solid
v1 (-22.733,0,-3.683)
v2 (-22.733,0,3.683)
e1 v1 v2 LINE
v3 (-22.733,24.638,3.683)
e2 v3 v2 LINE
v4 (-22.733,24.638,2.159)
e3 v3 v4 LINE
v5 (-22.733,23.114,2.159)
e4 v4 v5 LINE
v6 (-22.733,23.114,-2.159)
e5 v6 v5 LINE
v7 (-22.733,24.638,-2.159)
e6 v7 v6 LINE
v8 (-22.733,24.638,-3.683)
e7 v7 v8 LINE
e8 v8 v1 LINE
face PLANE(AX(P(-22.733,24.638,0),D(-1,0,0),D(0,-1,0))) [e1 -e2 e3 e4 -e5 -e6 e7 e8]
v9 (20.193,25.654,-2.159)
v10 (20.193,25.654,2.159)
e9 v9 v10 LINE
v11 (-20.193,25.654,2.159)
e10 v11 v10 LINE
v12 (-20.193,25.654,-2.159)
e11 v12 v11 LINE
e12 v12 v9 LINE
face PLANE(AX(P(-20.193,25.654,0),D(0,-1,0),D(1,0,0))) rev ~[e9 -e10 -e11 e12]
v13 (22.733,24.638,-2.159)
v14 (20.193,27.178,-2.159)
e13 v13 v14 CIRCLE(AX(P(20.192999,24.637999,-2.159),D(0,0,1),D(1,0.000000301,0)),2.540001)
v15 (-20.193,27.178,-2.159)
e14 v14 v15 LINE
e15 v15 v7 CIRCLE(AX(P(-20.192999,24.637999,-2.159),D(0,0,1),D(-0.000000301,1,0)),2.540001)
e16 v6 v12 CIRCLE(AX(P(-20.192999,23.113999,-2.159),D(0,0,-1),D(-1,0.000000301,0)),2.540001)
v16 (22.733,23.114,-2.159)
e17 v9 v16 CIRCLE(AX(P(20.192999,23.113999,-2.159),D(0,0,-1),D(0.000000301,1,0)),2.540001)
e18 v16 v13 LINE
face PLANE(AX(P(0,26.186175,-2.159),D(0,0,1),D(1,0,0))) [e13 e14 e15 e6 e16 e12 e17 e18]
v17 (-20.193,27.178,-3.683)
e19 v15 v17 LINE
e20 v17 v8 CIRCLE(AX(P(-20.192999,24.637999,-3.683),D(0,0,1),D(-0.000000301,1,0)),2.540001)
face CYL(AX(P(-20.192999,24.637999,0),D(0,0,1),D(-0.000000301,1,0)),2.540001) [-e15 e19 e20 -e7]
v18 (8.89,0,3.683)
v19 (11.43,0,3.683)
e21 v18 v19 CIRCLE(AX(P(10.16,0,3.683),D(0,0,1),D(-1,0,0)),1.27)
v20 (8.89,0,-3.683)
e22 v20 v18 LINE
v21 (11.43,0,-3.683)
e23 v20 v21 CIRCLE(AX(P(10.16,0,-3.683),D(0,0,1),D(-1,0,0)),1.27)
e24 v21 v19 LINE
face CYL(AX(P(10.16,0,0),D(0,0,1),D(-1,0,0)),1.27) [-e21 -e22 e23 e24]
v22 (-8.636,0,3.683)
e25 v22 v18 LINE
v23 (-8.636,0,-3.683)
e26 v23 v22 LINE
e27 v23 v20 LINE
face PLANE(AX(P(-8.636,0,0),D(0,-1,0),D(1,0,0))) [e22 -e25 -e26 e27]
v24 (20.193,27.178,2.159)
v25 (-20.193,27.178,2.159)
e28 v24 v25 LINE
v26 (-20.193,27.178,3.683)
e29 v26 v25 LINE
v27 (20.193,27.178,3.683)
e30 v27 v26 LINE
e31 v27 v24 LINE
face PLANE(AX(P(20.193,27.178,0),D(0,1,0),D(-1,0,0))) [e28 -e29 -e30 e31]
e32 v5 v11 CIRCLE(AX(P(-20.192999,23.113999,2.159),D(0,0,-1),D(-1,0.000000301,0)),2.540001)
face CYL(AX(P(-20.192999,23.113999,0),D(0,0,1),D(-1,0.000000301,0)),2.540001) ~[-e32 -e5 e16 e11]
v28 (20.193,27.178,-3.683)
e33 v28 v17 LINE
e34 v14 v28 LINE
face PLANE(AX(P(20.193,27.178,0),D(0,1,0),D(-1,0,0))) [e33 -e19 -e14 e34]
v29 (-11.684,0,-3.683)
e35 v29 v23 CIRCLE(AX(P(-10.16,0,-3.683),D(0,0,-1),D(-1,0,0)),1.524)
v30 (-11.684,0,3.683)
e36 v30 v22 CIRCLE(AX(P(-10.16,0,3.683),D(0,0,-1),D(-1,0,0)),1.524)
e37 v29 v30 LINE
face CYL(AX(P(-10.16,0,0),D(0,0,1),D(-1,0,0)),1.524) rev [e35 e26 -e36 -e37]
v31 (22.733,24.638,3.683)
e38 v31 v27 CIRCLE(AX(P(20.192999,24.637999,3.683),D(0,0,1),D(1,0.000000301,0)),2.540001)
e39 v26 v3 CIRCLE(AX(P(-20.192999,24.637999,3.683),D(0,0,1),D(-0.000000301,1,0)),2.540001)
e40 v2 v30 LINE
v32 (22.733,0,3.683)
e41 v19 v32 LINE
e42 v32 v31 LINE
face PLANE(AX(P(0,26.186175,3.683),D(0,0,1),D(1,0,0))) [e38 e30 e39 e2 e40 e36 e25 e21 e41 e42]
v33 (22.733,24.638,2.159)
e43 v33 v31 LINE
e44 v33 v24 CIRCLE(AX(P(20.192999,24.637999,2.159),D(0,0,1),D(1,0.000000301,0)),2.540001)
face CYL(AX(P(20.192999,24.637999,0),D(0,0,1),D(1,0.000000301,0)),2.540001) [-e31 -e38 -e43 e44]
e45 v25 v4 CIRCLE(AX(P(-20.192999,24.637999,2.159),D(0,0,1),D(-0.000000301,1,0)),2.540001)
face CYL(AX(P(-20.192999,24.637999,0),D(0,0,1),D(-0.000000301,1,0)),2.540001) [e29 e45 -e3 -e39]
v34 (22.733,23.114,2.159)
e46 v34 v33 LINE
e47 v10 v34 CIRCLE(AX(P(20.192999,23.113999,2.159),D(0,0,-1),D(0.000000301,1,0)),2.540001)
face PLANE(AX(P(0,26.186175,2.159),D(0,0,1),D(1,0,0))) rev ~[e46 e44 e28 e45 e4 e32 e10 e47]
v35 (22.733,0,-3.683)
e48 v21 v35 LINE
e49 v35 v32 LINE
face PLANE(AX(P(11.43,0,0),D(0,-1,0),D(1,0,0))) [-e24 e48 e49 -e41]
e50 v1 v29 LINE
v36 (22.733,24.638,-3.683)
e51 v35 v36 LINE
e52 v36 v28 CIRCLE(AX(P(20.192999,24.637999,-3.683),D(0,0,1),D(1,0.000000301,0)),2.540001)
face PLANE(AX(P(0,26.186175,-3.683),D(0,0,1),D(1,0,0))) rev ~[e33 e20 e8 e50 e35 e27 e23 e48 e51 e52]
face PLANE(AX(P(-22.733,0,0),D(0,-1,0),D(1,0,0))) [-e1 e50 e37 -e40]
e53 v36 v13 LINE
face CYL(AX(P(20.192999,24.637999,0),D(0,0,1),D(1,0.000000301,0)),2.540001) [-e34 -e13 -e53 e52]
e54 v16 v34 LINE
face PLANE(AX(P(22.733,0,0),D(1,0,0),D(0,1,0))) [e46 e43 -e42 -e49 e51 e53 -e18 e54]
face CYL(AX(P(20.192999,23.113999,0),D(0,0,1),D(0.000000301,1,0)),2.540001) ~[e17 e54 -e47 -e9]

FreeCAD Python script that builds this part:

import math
import FreeCAD as App
import Part
import Sketcher
Q = App.Units.Quantity

doc = App.newDocument("Part")
body = doc.addObject("PartDesign::Body", "Body")

# Sketch on XY plane
sketch1 = doc.addObject("Sketcher::SketchObject", "Sketch")
body.addObject(sketch1)
sketch1.AttachmentSupport = (doc.XY_Plane, [""])
sketch1.MapMode = "FlatFace"
sketch1.addGeometry([
    Part.LineSegment(App.Vector(-22.7, 24.6, 0), App.Vector(-22.7, 0, 0)),  # 0
    Part.LineSegment(App.Vector(-22.7, 0, 0), App.Vector(-11.7, 0, 0)),  # 1
    Part.ArcOfCircle(Part.Circle(App.Vector(-10.2, 0, 0), App.Vector(0, 0, 1), 1.5), math.radians(0), math.radians(180)),  # 2
    Part.LineSegment(App.Vector(-8.6, 0, 0), App.Vector(8.9, 0, 0)),  # 3
    Part.ArcOfCircle(Part.Circle(App.Vector(10.2, 0, 0), App.Vector(0, 0, 1), 1.3), math.radians(180), math.radians(360)),  # 4
    Part.LineSegment(App.Vector(11.4, 0, 0), App.Vector(22.7, 0, 0)),  # 5
    Part.LineSegment(App.Vector(22.7, 0, 0), App.Vector(22.7, 24.6, 0)),  # 6
    Part.ArcOfCircle(Part.Circle(App.Vector(20.2, 24.6, 0), App.Vector(0, 0, 1), 2.5), math.radians(0), math.radians(90)),  # 7
    Part.LineSegment(App.Vector(20.2, 27.2, 0), App.Vector(-20.2, 27.2, 0)),  # 8
    Part.ArcOfCircle(Part.Circle(App.Vector(-20.2, 24.6, 0), App.Vector(0, 0, 1), 2.5), math.radians(90), math.radians(180)),  # 9
], False)
sketch1.addConstraint([
    Sketcher.Constraint("Coincident", 0, 2, 1, 1),
    Sketcher.Constraint("Coincident", 1, 2, 2, 2),
    Sketcher.Constraint("Coincident", 2, 1, 3, 1),
    Sketcher.Constraint("Coincident", 3, 2, 4, 1),
    Sketcher.Constraint("Coincident", 4, 2, 5, 1),
    Sketcher.Constraint("Coincident", 5, 2, 6, 1),
    Sketcher.Constraint("Tangent", 6, 2, 7, 1),
    Sketcher.Constraint("Tangent", 7, 2, 8, 1),
    Sketcher.Constraint("Tangent", 8, 2, 9, 1),
    Sketcher.Constraint("Tangent", 9, 2, 0, 1),
    Sketcher.Constraint("Vertical", 0),
    Sketcher.Constraint("Horizontal", 1),
    Sketcher.Constraint("Horizontal", 3),
    Sketcher.Constraint("Horizontal", 5),
    Sketcher.Constraint("Vertical", 6),
    Sketcher.Constraint("Horizontal", 8),
    Sketcher.Constraint("Equal", 7, 9),
    Sketcher.Constraint("Symmetric", 2, 3, 4, 3, -1, 1),
    Sketcher.Constraint("Symmetric", 0, 2, 5, 2, -1, 1),
    Sketcher.Constraint("PointOnObject", 2, 3, -1),
    Sketcher.Constraint("PointOnObject", 0, 2, -1),
    Sketcher.Constraint("PointOnObject", 2, 1, -1),
    Sketcher.Constraint("Radius", 7, Q("0.1 in")),
    Sketcher.Constraint("Radius", 2, Q("0.06 in")),
    Sketcher.Constraint("Radius", 4, Q("0.05 in")),
    Sketcher.Constraint("DistanceX", 3, 1, 3, 2, Q("0.69 in")),
    Sketcher.Constraint("DistanceX", 8, 2, 8, 1, Q("1.59 in")),
    Sketcher.Constraint("DistanceY", 0, 2, 0, 1, Q("0.97 in")),
])
pad1 = doc.addObject("PartDesign::Pad", "Pad")
body.addObject(pad1)
pad1.Profile = sketch1
pad1.Length = Q("0.29 in")
pad1.Midplane = True

# Sketch on XY plane
sketch2 = doc.addObject("Sketcher::SketchObject", "Sketch001")
body.addObject(sketch2)
sketch2.AttachmentSupport = (doc.XY_Plane, [""])
sketch2.MapMode = "FlatFace"
sketch2.addGeometry([
    Part.LineSegment(App.Vector(-22.7, 24.6, 0), App.Vector(-22.7, 23.1, 0)),  # 0
    Part.ArcOfCircle(Part.Circle(App.Vector(-20.2, 23.1, 0), App.Vector(0, 0, 1), 2.5), math.radians(90), math.radians(180)),  # 1
    Part.LineSegment(App.Vector(-20.2, 25.7, 0), App.Vector(20.2, 25.7, 0)),  # 2
    Part.ArcOfCircle(Part.Circle(App.Vector(20.2, 23.1, 0), App.Vector(0, 0, 1), 2.5), math.radians(0), math.radians(90)),  # 3
    Part.LineSegment(App.Vector(22.7, 23.1, 0), App.Vector(22.7, 24.6, 0)),  # 4
    Part.ArcOfCircle(Part.Circle(App.Vector(20.2, 24.6, 0), App.Vector(0, 0, 1), 2.5), math.radians(0), math.radians(90)),  # 5
    Part.LineSegment(App.Vector(20.2, 27.2, 0), App.Vector(-20.2, 27.2, 0)),  # 6
    Part.ArcOfCircle(Part.Circle(App.Vector(-20.2, 24.6, 0), App.Vector(0, 0, 1), 2.5), math.radians(90), math.radians(180)),  # 7
], False)
sketch2.addConstraint([
    Sketcher.Constraint("Tangent", 0, 2, 1, 2),
    Sketcher.Constraint("Tangent", 1, 1, 2, 1),
    Sketcher.Constraint("Tangent", 2, 2, 3, 2),
    Sketcher.Constraint("Tangent", 3, 1, 4, 1),
    Sketcher.Constraint("Tangent", 4, 2, 5, 1),
    Sketcher.Constraint("Tangent", 5, 2, 6, 1),
    Sketcher.Constraint("Tangent", 6, 2, 7, 1),
    Sketcher.Constraint("Tangent", 7, 2, 0, 1),
    Sketcher.Constraint("Vertical", 0),
    Sketcher.Constraint("Horizontal", 2),
    Sketcher.Constraint("Vertical", 4),
    Sketcher.Constraint("Horizontal", 6),
    Sketcher.Constraint("Equal", 1, 3),
    Sketcher.Constraint("Equal", 3, 5),
    Sketcher.Constraint("Equal", 5, 7),
    Sketcher.Constraint("Radius", 1, Q("0.1 in")),
    Sketcher.Constraint("DistanceX", 2, 1, 2, 2, Q("1.59 in")),
    Sketcher.Constraint("DistanceY", 0, 2, 0, 1, Q("0.06 in")),
    Sketcher.Constraint("DistanceY", -1, 1, 1, 3, Q("0.91 in")),
    Sketcher.Constraint("DistanceX", 1, 3, -1, 1, Q("0.795 in")),
])
pocket1 = doc.addObject("PartDesign::Pocket", "Pocket")
body.addObject(pocket1)
pocket1.Profile = sketch2
pocket1.Length = Q("0.17 in")
pocket1.Midplane = True

doc.recompute()
